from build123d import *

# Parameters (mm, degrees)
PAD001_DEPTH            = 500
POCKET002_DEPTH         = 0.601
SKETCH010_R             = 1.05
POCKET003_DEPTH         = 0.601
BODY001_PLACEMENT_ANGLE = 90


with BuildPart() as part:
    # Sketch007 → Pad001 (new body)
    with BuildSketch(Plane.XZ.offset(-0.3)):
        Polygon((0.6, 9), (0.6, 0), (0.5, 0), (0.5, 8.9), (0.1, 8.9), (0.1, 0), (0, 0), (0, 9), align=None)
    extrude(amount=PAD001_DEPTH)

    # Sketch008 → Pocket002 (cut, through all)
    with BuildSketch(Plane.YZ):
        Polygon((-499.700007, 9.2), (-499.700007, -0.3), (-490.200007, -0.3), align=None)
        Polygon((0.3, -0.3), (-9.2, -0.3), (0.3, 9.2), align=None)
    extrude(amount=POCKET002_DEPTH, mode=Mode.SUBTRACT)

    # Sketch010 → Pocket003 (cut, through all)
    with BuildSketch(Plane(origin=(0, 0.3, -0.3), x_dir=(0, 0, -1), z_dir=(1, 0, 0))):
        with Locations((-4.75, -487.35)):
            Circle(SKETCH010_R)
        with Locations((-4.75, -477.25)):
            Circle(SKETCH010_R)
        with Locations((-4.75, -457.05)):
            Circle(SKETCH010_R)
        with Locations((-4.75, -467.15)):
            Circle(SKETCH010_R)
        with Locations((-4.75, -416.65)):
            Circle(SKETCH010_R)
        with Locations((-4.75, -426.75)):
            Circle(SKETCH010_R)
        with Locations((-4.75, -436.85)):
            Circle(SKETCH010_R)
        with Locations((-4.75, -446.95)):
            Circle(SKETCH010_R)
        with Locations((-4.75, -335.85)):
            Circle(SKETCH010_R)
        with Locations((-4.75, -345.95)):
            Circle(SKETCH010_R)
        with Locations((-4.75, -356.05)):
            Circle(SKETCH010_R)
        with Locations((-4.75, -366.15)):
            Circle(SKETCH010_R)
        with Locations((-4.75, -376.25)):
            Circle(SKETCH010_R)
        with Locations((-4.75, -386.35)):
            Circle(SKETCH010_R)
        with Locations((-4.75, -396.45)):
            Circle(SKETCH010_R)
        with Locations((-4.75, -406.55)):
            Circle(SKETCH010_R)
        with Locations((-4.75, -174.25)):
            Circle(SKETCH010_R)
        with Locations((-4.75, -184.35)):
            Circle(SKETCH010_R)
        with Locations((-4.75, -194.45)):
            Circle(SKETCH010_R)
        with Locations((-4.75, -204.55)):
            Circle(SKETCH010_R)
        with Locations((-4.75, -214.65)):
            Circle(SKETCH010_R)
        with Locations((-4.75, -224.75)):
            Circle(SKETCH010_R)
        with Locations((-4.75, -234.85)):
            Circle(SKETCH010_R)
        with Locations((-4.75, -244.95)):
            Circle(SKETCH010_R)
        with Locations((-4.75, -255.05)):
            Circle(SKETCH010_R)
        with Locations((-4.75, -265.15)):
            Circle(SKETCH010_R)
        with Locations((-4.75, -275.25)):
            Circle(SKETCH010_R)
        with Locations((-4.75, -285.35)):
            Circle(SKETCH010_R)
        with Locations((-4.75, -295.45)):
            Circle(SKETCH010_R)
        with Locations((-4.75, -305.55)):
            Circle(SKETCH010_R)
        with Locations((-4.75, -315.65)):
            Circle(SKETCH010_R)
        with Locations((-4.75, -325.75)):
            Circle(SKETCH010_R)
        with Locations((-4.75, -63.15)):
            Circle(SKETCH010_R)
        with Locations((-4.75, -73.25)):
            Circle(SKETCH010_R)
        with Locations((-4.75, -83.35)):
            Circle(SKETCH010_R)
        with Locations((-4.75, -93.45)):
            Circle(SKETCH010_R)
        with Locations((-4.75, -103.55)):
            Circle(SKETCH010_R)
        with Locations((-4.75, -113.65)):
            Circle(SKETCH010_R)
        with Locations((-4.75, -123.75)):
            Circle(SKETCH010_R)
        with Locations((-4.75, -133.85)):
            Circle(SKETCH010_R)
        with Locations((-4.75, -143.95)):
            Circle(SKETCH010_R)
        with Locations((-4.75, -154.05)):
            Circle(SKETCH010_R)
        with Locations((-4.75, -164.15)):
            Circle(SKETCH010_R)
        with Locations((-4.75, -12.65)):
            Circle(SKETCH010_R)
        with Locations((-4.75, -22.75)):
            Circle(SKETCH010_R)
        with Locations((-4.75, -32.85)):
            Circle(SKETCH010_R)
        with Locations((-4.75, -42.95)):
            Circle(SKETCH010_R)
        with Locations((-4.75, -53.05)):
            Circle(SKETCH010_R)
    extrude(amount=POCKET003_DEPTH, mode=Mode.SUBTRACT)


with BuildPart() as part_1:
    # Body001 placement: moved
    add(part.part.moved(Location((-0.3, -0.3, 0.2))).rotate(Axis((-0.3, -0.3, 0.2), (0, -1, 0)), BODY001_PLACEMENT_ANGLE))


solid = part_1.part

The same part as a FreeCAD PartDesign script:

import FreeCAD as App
import Part
import Sketcher
from FreeCAD import Vector

doc = App.newDocument("Part")
body = doc.addObject("PartDesign::Body", "Body")

# Sketch on XZ plane
sketch1 = body.newObject("Sketcher::SketchObject", "Sketch")
sketch1.AttachmentSupport = (doc.getObject("XZ_Plane"), [""])
sketch1.MapMode = "FlatFace"
sketch1.AttachmentOffset = App.Placement(Vector(0, 0, -0.3), App.Rotation())
sketch1.addGeometry([
    Part.LineSegment(Vector(0.6, 0, 0), Vector(0.6, 9, 0)),  # 0
    Part.LineSegment(Vector(0.6, 9, 0), Vector(0, 9, 0)),  # 1
    Part.LineSegment(Vector(0, 9, 0), Vector(0, 0, 0)),  # 2
    Part.LineSegment(Vector(0, 0, 0), Vector(0.1, 0, 0)),  # 3
    Part.LineSegment(Vector(0.1, 0, 0), Vector(0.1, 8.9, 0)),  # 4
    Part.LineSegment(Vector(0.1, 8.9, 0), Vector(0.5, 8.9, 0)),  # 5
    Part.LineSegment(Vector(0.5, 8.9, 0), Vector(0.5, 0, 0)),  # 6
    Part.LineSegment(Vector(0.5, 0, 0), Vector(0.6, 0, 0)),  # 7
], False)
sketch1.addConstraint([
    Sketcher.Constraint("Coincident", 0, 2, 1, 1),
    Sketcher.Constraint("Coincident", 1, 2, 2, 1),
    Sketcher.Constraint("Coincident", 2, 2, 3, 1),
    Sketcher.Constraint("Coincident", 3, 2, 4, 1),
    Sketcher.Constraint("Coincident", 4, 2, 5, 1),
    Sketcher.Constraint("Coincident", 5, 2, 6, 1),
    Sketcher.Constraint("Coincident", 6, 2, 7, 1),
    Sketcher.Constraint("Coincident", 7, 2, 0, 1),
    Sketcher.Constraint("Vertical", 0),
    Sketcher.Constraint("Horizontal", 1),
    Sketcher.Constraint("Vertical", 2),
    Sketcher.Constraint("Horizontal", 3),
    Sketcher.Constraint("Vertical", 4),
    Sketcher.Constraint("Horizontal", 5),
    Sketcher.Constraint("Vertical", 6),
    Sketcher.Constraint("Horizontal", 7),
    Sketcher.Constraint("Coincident", 2, 2, -1, 1),
    Sketcher.Constraint("PointOnObject", 6, 2, -1),
    Sketcher.Constraint("Equal", 3, 7),
    Sketcher.Constraint("DistanceY", 0, 1, 0, 2, 9.0),
    Sketcher.Constraint("DistanceX", 1, 2, 1, 1, 0.6),
    Sketcher.Constraint("DistanceX", 3, 1, 3, 2, 0.1),
    Sketcher.Constraint("DistanceY", 4, 1, 4, 2, 8.9),
])
pad1 = body.newObject("PartDesign::Pad", "Pad")
pad1.Profile = sketch1
pad1.Length = 500

# Sketch on YZ plane
sketch2 = body.newObject("Sketcher::SketchObject", "Sketch001")
sketch2.AttachmentSupport = (doc.getObject("YZ_Plane"), [""])
sketch2.MapMode = "FlatFace"
sketch2.addGeometry([
    Part.LineSegment(Vector(-499.700007, 9.2, 0), Vector(-499.700007, -0.3, 0)),  # 0
    Part.LineSegment(Vector(-499.700007, -0.3, 0), Vector(-490.200007, -0.3, 0)),  # 1
    Part.LineSegment(Vector(-490.200007, -0.3, 0), Vector(-499.700007, 9.2, 0)),  # 2
    Part.LineSegment(Vector(-9.2, -0.3, 0), Vector(0.3, -0.3, 0)),  # 3
    Part.LineSegment(Vector(0.3, -0.3, 0), Vector(0.3, 9.2, 0)),  # 4
    Part.LineSegment(Vector(0.3, 9.2, 0), Vector(-9.2, -0.3, 0)),  # 5
], False)
sketch2.addConstraint([
    Sketcher.Constraint("Coincident", 0, 2, 1, 1),
    Sketcher.Constraint("Coincident", 1, 2, 2, 1),
    Sketcher.Constraint("Coincident", 2, 2, 0, 1),
    Sketcher.Constraint("Coincident", 3, 2, 4, 1),
    Sketcher.Constraint("Coincident", 4, 2, 5, 1),
    Sketcher.Constraint("Coincident", 5, 2, 3, 1),
    Sketcher.Constraint("Vertical", 0),
    Sketcher.Constraint("Horizontal", 1),
    Sketcher.Constraint("Horizontal", 3),
    Sketcher.Constraint("Vertical", 4),
    Sketcher.Constraint("Perpendicular", 2, 5),
    Sketcher.Constraint("Horizontal", 1, 2, 3, 2),
    Sketcher.Constraint("Horizontal", 2, 2, 4, 2),
    Sketcher.Constraint("Equal", 1, 3),
    Sketcher.Constraint("DistanceX", 1, 1, 1, 2, 9.5),
    Sketcher.Constraint("DistanceY", 0, 2, -1, 1, 0.3),
    Sketcher.Constraint("DistanceX", -1, 1, 3, 2, 0.3),
    Sketcher.Constraint("DistanceX", 0, 2, -1, 1, 499.700007),
])
pocket1 = body.newObject("PartDesign::Pocket", "Pocket")
pocket1.Profile = sketch2
pocket1.Type = "ThroughAll"
pocket1.Reversed = True

# Sketch on YZ plane
sketch3 = body.newObject("Sketcher::SketchObject", "Sketch002")
sketch3.AttachmentSupport = (doc.getObject("YZ_Plane"), [""])
sketch3.MapMode = "FlatFace"
sketch3.addGeometry([
    Part.Circle(Vector(-487.05, 4.45, 0), Vector(0, 0, 1), 1.05),  # 0
    Part.Circle(Vector(-476.95, 4.45, 0), Vector(0, 0, 1), 1.05),  # 1
    Part.Circle(Vector(-456.75, 4.45, 0), Vector(0, 0, 1), 1.05),  # 2
    Part.Circle(Vector(-466.85, 4.45, 0), Vector(0, 0, 1), 1.05),  # 3
    Part.Circle(Vector(-416.35, 4.45, 0), Vector(0, 0, 1), 1.05),  # 4
    Part.Circle(Vector(-426.45, 4.45, 0), Vector(0, 0, 1), 1.05),  # 5
    Part.Circle(Vector(-436.55, 4.45, 0), Vector(0, 0, 1), 1.05),  # 6
    Part.Circle(Vector(-446.65, 4.45, 0), Vector(0, 0, 1), 1.05),  # 7
    Part.Circle(Vector(-335.55, 4.45, 0), Vector(0, 0, 1), 1.05),  # 8
    Part.Circle(Vector(-345.65, 4.45, 0), Vector(0, 0, 1), 1.05),  # 9
    Part.Circle(Vector(-355.75, 4.45, 0), Vector(0, 0, 1), 1.05),  # 10
    Part.Circle(Vector(-365.85, 4.45, 0), Vector(0, 0, 1), 1.05),  # 11
    Part.Circle(Vector(-375.95, 4.45, 0), Vector(0, 0, 1), 1.05),  # 12
    Part.Circle(Vector(-386.05, 4.45, 0), Vector(0, 0, 1), 1.05),  # 13
    Part.Circle(Vector(-396.15, 4.45, 0), Vector(0, 0, 1), 1.05),  # 14
    Part.Circle(Vector(-406.25, 4.45, 0), Vector(0, 0, 1), 1.05),  # 15
    Part.Circle(Vector(-173.95, 4.45, 0), Vector(0, 0, 1), 1.05),  # 16
    Part.Circle(Vector(-184.05, 4.45, 0), Vector(0, 0, 1), 1.05),  # 17
    Part.Circle(Vector(-194.15, 4.45, 0), Vector(0, 0, 1), 1.05),  # 18
    Part.Circle(Vector(-204.25, 4.45, 0), Vector(0, 0, 1), 1.05),  # 19
    Part.Circle(Vector(-214.35, 4.45, 0), Vector(0, 0, 1), 1.05),  # 20
    Part.Circle(Vector(-224.45, 4.45, 0), Vector(0, 0, 1), 1.05),  # 21
    Part.Circle(Vector(-234.55, 4.45, 0), Vector(0, 0, 1), 1.05),  # 22
    Part.Circle(Vector(-244.65, 4.45, 0), Vector(0, 0, 1), 1.05),  # 23
    Part.Circle(Vector(-254.75, 4.45, 0), Vector(0, 0, 1), 1.05),  # 24
    Part.Circle(Vector(-264.85, 4.45, 0), Vector(0, 0, 1), 1.05),  # 25
    Part.Circle(Vector(-274.95, 4.45, 0), Vector(0, 0, 1), 1.05),  # 26
    Part.Circle(Vector(-285.05, 4.45, 0), Vector(0, 0, 1), 1.05),  # 27
    Part.Circle(Vector(-295.15, 4.45, 0), Vector(0, 0, 1), 1.05),  # 28
    Part.Circle(Vector(-305.25, 4.45, 0), Vector(0, 0, 1), 1.05),  # 29
    Part.Circle(Vector(-315.35, 4.45, 0), Vector(0, 0, 1), 1.05),  # 30
    Part.Circle(Vector(-325.45, 4.45, 0), Vector(0, 0, 1), 1.05),  # 31
    Part.Circle(Vector(-62.85, 4.45, 0), Vector(0, 0, 1), 1.05),  # 32
    Part.Circle(Vector(-72.95, 4.45, 0), Vector(0, 0, 1), 1.05),  # 33
    Part.Circle(Vector(-83.05, 4.45, 0), Vector(0, 0, 1), 1.05),  # 34
    Part.Circle(Vector(-93.15, 4.45, 0), Vector(0, 0, 1), 1.05),  # 35
    Part.Circle(Vector(-103.25, 4.45, 0), Vector(0, 0, 1), 1.05),  # 36
    Part.Circle(Vector(-113.35, 4.45, 0), Vector(0, 0, 1), 1.05),  # 37
    Part.Circle(Vector(-123.45, 4.45, 0), Vector(0, 0, 1), 1.05),  # 38
    Part.Circle(Vector(-133.55, 4.45, 0), Vector(0, 0, 1), 1.05),  # 39
    Part.Circle(Vector(-143.65, 4.45, 0), Vector(0, 0, 1), 1.05),  # 40
    Part.Circle(Vector(-153.75, 4.45, 0), Vector(0, 0, 1), 1.05),  # 41
    Part.Circle(Vector(-163.85, 4.45, 0), Vector(0, 0, 1), 1.05),  # 42
    Part.Circle(Vector(-12.35, 4.45, 0), Vector(0, 0, 1), 1.05),  # 43
    Part.Circle(Vector(-22.45, 4.45, 0), Vector(0, 0, 1), 1.05),  # 44
    Part.Circle(Vector(-32.55, 4.45, 0), Vector(0, 0, 1), 1.05),  # 45
    Part.Circle(Vector(-42.65, 4.45, 0), Vector(0, 0, 1), 1.05),  # 46
    Part.Circle(Vector(-52.75, 4.45, 0), Vector(0, 0, 1), 1.05),  # 47
], False)
sketch3.addConstraint([
    Sketcher.Constraint("Equal", 0, 1),
    Sketcher.Constraint("Equal", 1, 2),
    Sketcher.Constraint("Equal", 2, 3),
    Sketcher.Constraint("Equal", 3, 4),
    Sketcher.Constraint("Equal", 4, 5),
    Sketcher.Constraint("Equal", 5, 6),
    Sketcher.Constraint("Equal", 6, 7),
    Sketcher.Constraint("Equal", 7, 8),
    Sketcher.Constraint("Equal", 8, 9),
    Sketcher.Constraint("Equal", 9, 10),
    Sketcher.Constraint("Equal", 10, 11),
    Sketcher.Constraint("Equal", 11, 12),
    Sketcher.Constraint("Equal", 12, 13),
    Sketcher.Constraint("Equal", 13, 14),
    Sketcher.Constraint("Equal", 14, 15),
    Sketcher.Constraint("Equal", 15, 16),
    Sketcher.Constraint("Equal", 16, 17),
    Sketcher.Constraint("Equal", 17, 18),
    Sketcher.Constraint("Equal", 18, 19),
    Sketcher.Constraint("Equal", 19, 20),
    Sketcher.Constraint("Equal", 20, 21),
    Sketcher.Constraint("Equal", 21, 22),
    Sketcher.Constraint("Equal", 22, 23),
    Sketcher.Constraint("Equal", 23, 24),
    Sketcher.Constraint("Equal", 24, 25),
    Sketcher.Constraint("Equal", 25, 26),
    Sketcher.Constraint("Equal", 26, 27),
    Sketcher.Constraint("Equal", 27, 28),
    Sketcher.Constraint("Equal", 28, 29),
    Sketcher.Constraint("Equal", 29, 30),
    Sketcher.Constraint("Equal", 30, 31),
    Sketcher.Constraint("Equal", 31, 32),
    Sketcher.Constraint("Equal", 32, 33),
    Sketcher.Constraint("Equal", 33, 34),
    Sketcher.Constraint("Equal", 34, 35),
    Sketcher.Constraint("Equal", 35, 36),
    Sketcher.Constraint("Equal", 36, 37),
    Sketcher.Constraint("Equal", 37, 38),
    Sketcher.Constraint("Equal", 38, 39),
    Sketcher.Constraint("Equal", 39, 40),
    Sketcher.Constraint("Equal", 40, 41),
    Sketcher.Constraint("Equal", 41, 42),
    Sketcher.Constraint("Equal", 42, 43),
    Sketcher.Constraint("Equal", 43, 44),
    Sketcher.Constraint("Equal", 44, 45),
    Sketcher.Constraint("Equal", 45, 46),
    Sketcher.Constraint("Equal", 46, 47),
    Sketcher.Constraint("Horizontal", 0, 3, 1, 3),
    Sketcher.Constraint("Horizontal", 1, 3, 2, 3),
    Sketcher.Constraint("Horizontal", 2, 3, 3, 3),
    Sketcher.Constraint("Horizontal", 3, 3, 4, 3),
    Sketcher.Constraint("Horizontal", 4, 3, 5, 3),
    Sketcher.Constraint("Horizontal", 5, 3, 6, 3),
    Sketcher.Constraint("Horizontal", 6, 3, 7, 3),
    Sketcher.Constraint("Horizontal", 7, 3, 8, 3),
    Sketcher.Constraint("Horizontal", 8, 3, 9, 3),
    Sketcher.Constraint("Horizontal", 9, 3, 10, 3),
    Sketcher.Constraint("Horizontal", 10, 3, 11, 3),
    Sketcher.Constraint("Horizontal", 11, 3, 12, 3),
    Sketcher.Constraint("Horizontal", 12, 3, 13, 3),
    Sketcher.Constraint("Horizontal", 13, 3, 14, 3),
    Sketcher.Constraint("Horizontal", 14, 3, 15, 3),
    Sketcher.Constraint("Horizontal", 15, 3, 16, 3),
    Sketcher.Constraint("Horizontal", 16, 3, 17, 3),
    Sketcher.Constraint("Horizontal", 17, 3, 18, 3),
    Sketcher.Constraint("Horizontal", 18, 3, 19, 3),
    Sketcher.Constraint("Horizontal", 19, 3, 20, 3),
    Sketcher.Constraint("Horizontal", 20, 3, 21, 3),
    Sketcher.Constraint("Horizontal", 21, 3, 22, 3),
    Sketcher.Constraint("Horizontal", 22, 3, 23, 3),
    Sketcher.Constraint("Horizontal", 23, 3, 24, 3),
    Sketcher.Constraint("Horizontal", 24, 3, 25, 3),
    Sketcher.Constraint("Horizontal", 25, 3, 26, 3),
    Sketcher.Constraint("Horizontal", 26, 3, 27, 3),
    Sketcher.Constraint("Horizontal", 27, 3, 28, 3),
    Sketcher.Constraint("Horizontal", 28, 3, 29, 3),
    Sketcher.Constraint("Horizontal", 29, 3, 30, 3),
    Sketcher.Constraint("Horizontal", 30, 3, 31, 3),
    Sketcher.Constraint("Horizontal", 31, 3, 32, 3),
    Sketcher.Constraint("Horizontal", 32, 3, 33, 3),
    Sketcher.Constraint("Horizontal", 33, 3, 34, 3),
    Sketcher.Constraint("Horizontal", 34, 3, 35, 3),
    Sketcher.Constraint("Horizontal", 35, 3, 36, 3),
    Sketcher.Constraint("Horizontal", 36, 3, 37, 3),
    Sketcher.Constraint("Horizontal", 37, 3, 38, 3),
    Sketcher.Constraint("Horizontal", 38, 3, 39, 3),
    Sketcher.Constraint("Horizontal", 39, 3, 40, 3),
    Sketcher.Constraint("Horizontal", 40, 3, 41, 3),
    Sketcher.Constraint("Horizontal", 41, 3, 42, 3),
    Sketcher.Constraint("Horizontal", 42, 3, 43, 3),
    Sketcher.Constraint("Horizontal", 43, 3, 44, 3),
    Sketcher.Constraint("Horizontal", 44, 3, 45, 3),
    Sketcher.Constraint("Horizontal", 45, 3, 46, 3),
    Sketcher.Constraint("Horizontal", 46, 3, 47, 3),
    Sketcher.Constraint("Diameter", 0, 2.1),
    Sketcher.Constraint("DistanceX", 6, 3, 8, 3, 101.0),
    Sketcher.Constraint("DistanceX", 7, 3, 9, 3, 101.0),
    Sketcher.Constraint("DistanceX", 12, 3, 16, 3, 202.0),
    Sketcher.Constraint("DistanceX", 16, 3, 33, 3, 101.0),
    Sketcher.Constraint("DistanceX", 17, 3, 34, 3, 101.0),
    Sketcher.Constraint("DistanceX", 0, 3, 1, 3, 10.1),
    Sketcher.Constraint("DistanceX", 1, 3, 2, 3, 20.2),
    Sketcher.Constraint("DistanceX", 1, 3, 3, 3, 10.1),
    Sketcher.Constraint("DistanceX", 2, 3, 4, 3, 40.4),
    Sketcher.Constraint("DistanceX", 5, 3, 4, 3, 10.1),
    Sketcher.Constraint("DistanceX", 6, 3, 5, 3, 10.1),
    Sketcher.Constraint("DistanceX", 7, 3, 6, 3, 10.1),
    Sketcher.Constraint("DistanceX", 10, 3, 9, 3, 10.1),
    Sketcher.Constraint("DistanceX", 11, 3, 10, 3, 10.1),
    Sketcher.Constraint("DistanceX", 12, 3, 11, 3, 10.1),
    Sketcher.Constraint("DistanceX", 13, 3, 12, 3, 10.1),
    Sketcher.Constraint("DistanceX", 14, 3, 13, 3, 10.1),
    Sketcher.Constraint("DistanceX", 4, 3, 15, 3, 10.1),
    Sketcher.Constraint("DistanceX", 17, 3, 16, 3, 10.1),
    Sketcher.Constraint("DistanceX", 18, 3, 17, 3, 10.1),
    Sketcher.Constraint("DistanceX", 19, 3, 18, 3, 10.1),
    Sketcher.Constraint("DistanceX", 20, 3, 19, 3, 10.1),
    Sketcher.Constraint("DistanceX", 21, 3, 20, 3, 10.1),
    Sketcher.Constraint("DistanceX", 22, 3, 21, 3, 10.1),
    Sketcher.Constraint("DistanceX", 23, 3, 22, 3, 10.1),
    Sketcher.Constraint("DistanceX", 24, 3, 23, 3, 10.1),
    Sketcher.Constraint("DistanceX", 25, 3, 24, 3, 10.1),
    Sketcher.Constraint("DistanceX", 26, 3, 25, 3, 10.1),
    Sketcher.Constraint("DistanceX", 27, 3, 26, 3, 10.1),
    Sketcher.Constraint("DistanceX", 28, 3, 27, 3, 10.1),
    Sketcher.Constraint("DistanceX", 29, 3, 28, 3, 10.1),
    Sketcher.Constraint("DistanceX", 30, 3, 29, 3, 10.1),
    Sketcher.Constraint("DistanceX", 31, 3, 30, 3, 10.1),
    Sketcher.Constraint("DistanceX", 16, 3, 32, 3, 111.1),
    Sketcher.Constraint("DistanceX", 35, 3, 34, 3, 10.1),
    Sketcher.Constraint("DistanceX", 36, 3, 35, 3, 10.1),
    Sketcher.Constraint("DistanceX", 37, 3, 36, 3, 10.1),
    Sketcher.Constraint("DistanceX", 38, 3, 37, 3, 10.1),
    Sketcher.Constraint("DistanceX", 39, 3, 38, 3, 10.1),
    Sketcher.Constraint("DistanceX", 40, 3, 39, 3, 10.1),
    Sketcher.Constraint("DistanceX", 41, 3, 40, 3, 10.1),
    Sketcher.Constraint("DistanceX", 16, 3, 42, 3, 10.1),
    Sketcher.Constraint("DistanceX", 32, 3, 43, 3, 50.5),
    Sketcher.Constraint("DistanceX", 44, 3, 43, 3, 10.1),
    Sketcher.Constraint("DistanceX", 45, 3, 44, 3, 10.1),
    Sketcher.Constraint("DistanceX", 46, 3, 45, 3, 10.1),
    Sketcher.Constraint("DistanceX", 32, 3, 47, 3, 10.1),
    Sketcher.Constraint("DistanceX", 0, 3, -1, 1, 487.05),
    Sketcher.Constraint("DistanceY", -1, 1, 0, 3, 4.45),
])
pocket2 = body.newObject("PartDesign::Pocket", "Pocket001")
pocket2.Profile = sketch3
pocket2.Type = "ThroughAll"
pocket2.Reversed = True
body2 = doc.addObject("PartDesign::Body", "Body001")
doc.recompute()

body.Placement = App.Placement(Vector(-0.3, -0.3, 0.2), App.Rotation(Vector(0, -1, 0), 90))
boolean = body2.newObject("PartDesign::Boolean", "Boolean")
boolean.Type = "Fuse"
boolean.addObjects([body])

doc.recompute()
